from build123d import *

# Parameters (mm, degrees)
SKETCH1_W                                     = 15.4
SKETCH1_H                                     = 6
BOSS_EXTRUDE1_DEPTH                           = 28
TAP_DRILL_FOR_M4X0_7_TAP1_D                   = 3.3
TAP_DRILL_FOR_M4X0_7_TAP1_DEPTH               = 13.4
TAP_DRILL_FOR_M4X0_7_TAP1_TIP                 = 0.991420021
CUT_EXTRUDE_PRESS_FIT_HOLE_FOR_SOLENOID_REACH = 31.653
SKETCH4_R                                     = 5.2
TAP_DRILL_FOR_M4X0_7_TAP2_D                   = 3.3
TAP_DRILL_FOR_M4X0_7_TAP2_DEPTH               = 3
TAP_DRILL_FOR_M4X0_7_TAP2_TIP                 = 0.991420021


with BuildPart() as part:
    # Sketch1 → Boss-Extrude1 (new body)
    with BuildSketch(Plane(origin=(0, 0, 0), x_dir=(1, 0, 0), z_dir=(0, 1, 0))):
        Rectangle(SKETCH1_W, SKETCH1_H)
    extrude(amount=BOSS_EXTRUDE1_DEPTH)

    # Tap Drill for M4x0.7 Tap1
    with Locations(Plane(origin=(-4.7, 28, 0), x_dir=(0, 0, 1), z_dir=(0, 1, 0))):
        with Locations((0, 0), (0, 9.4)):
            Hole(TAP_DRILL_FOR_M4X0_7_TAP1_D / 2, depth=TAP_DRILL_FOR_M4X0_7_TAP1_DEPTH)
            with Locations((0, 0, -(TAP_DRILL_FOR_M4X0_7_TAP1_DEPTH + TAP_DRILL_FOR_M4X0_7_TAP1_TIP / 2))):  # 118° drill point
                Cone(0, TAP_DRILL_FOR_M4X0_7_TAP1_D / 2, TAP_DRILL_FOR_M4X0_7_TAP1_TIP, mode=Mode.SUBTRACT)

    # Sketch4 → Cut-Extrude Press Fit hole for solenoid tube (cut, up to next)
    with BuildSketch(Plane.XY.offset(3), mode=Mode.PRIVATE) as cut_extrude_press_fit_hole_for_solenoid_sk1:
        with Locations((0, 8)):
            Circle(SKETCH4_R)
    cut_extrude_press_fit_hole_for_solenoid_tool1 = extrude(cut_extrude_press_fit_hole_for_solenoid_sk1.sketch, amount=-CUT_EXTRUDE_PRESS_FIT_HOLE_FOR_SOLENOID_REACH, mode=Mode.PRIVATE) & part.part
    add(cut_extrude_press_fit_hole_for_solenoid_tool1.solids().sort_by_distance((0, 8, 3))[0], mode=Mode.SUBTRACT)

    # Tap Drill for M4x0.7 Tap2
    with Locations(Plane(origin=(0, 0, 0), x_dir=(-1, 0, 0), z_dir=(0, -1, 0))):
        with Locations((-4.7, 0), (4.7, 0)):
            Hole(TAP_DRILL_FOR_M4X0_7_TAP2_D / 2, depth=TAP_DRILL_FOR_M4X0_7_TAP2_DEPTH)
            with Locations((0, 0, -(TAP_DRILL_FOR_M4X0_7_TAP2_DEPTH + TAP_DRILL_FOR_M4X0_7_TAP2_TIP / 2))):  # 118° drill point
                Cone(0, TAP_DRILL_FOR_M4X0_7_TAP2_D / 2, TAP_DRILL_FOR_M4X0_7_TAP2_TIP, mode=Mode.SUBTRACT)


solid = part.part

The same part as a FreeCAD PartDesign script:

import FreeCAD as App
import Part
import Sketcher

V = App.Vector
Q = App.Units.Quantity


def add_polygon(sketch, points):
    """Adds a closed chain of lines whose ends are joined by coincident constraints."""
    first, n = sketch.GeometryCount, len(points)
    for a, b in zip(points, points[1:] + points[:1]):
        sketch.addGeometry(Part.LineSegment(App.Vector(*a, 0), App.Vector(*b, 0)), False)
    for i in range(n):
        sketch.addConstraint(Sketcher.Constraint("Coincident", first + i, 2, first + (i + 1) % n, 1))

doc = App.newDocument("Part")
body = doc.addObject("PartDesign::Body", "Body")

sketch1 = body.newObject("Sketcher::SketchObject", "Sketch")
sketch1.AttachmentSupport = (doc.getObject("XZ_Plane"), [""])
sketch1.MapMode = "FlatFace"
add_polygon(sketch1, [(-8, -3), (-8, 3), (8, 3), (8, -3)])
sketch1.addConstraint([
    Sketcher.Constraint("Vertical", 0),
    Sketcher.Constraint("Horizontal", 1),
    Sketcher.Constraint("Vertical", 2),
    Sketcher.Constraint("Horizontal", 3),
    Sketcher.Constraint("Symmetric", 0, 2, 2, 2, -1, 1),
    Sketcher.Constraint("DistanceY", 0, 1, 0, 2, Q("6 mm")),
    Sketcher.Constraint("DistanceX", 1, 1, 1, 2, Q("15.4 mm")),
])
pad1 = body.newObject("PartDesign::Pad", "Pad")
pad1.Profile = sketch1
pad1.Length = 28
pad1.Reversed = True

sketch2 = body.newObject("Sketcher::SketchObject", "Sketch001")
sketch2.AttachmentSupport = (doc.getObject("XZ_Plane"), [""])
sketch2.MapMode = "FlatFace"
sketch2.AttachmentOffset = App.Placement(V(0, 0, -28), App.Rotation())
sketch2.addGeometry([
    Part.Circle(V(-4.7, 0, 0), V(0, 0, 1), 1.6),
    Part.Circle(V(4.7, 0, 0), V(0, 0, 1), 1.6),
], False)
sketch2.addConstraint([
    Sketcher.Constraint("Equal", 0, 1),
    Sketcher.Constraint("Symmetric", 0, 3, 1, 3, -1, 1),
    Sketcher.Constraint("PointOnObject", 0, 3, -1),
    Sketcher.Constraint("Diameter", 0, Q("3.3 mm")),
    Sketcher.Constraint("DistanceX", 0, 3, -1, 1, Q("4.7 mm")),
])
doc.recompute()
hole = body.newObject("PartDesign::Hole", "Hole")
hole.Profile = sketch2
hole.ThreadType = "None"
hole.Diameter = 3.3
hole.DepthType = "Dimension"
hole.Depth = 13.4
hole.DrillPoint = "Angled"
hole.DrillPointAngle = 118
hole.Reversed = True

sketch3 = body.newObject("Sketcher::SketchObject", "Sketch002")
sketch3.AttachmentSupport = (doc.getObject("XY_Plane"), [""])
sketch3.MapMode = "FlatFace"
sketch3.AttachmentOffset = App.Placement(V(0, 0, 3), App.Rotation())
sketch3.addGeometry(Part.Circle(V(0, 8, 0), V(0, 0, 1), 5), False)
sketch3.addConstraint([
    Sketcher.Constraint("PointOnObject", 0, 3, -2),
    Sketcher.Constraint("Diameter", 0, Q("10.4 mm")),
    Sketcher.Constraint("DistanceY", -1, 1, 0, 3, Q("8 mm")),
])
pocket1 = body.newObject("PartDesign::Pocket", "Pocket")
pocket1.Profile = sketch3
pocket1.Type = "UpToFirst"

sketch4 = body.newObject("Sketcher::SketchObject", "Sketch003")
sketch4.AttachmentSupport = (doc.getObject("XZ_Plane"), [""])
sketch4.MapMode = "FlatFace"
sketch4.addGeometry([
    Part.Circle(V(4.7, 0, 0), V(0, 0, 1), 1.6),
    Part.Circle(V(-4.7, 0, 0), V(0, 0, 1), 1.6),
], False)
sketch4.addConstraint([
    Sketcher.Constraint("Equal", 0, 1),
    Sketcher.Constraint("Symmetric", 0, 3, 1, 3, -1, 1),
    Sketcher.Constraint("PointOnObject", 0, 3, -1),
    Sketcher.Constraint("Diameter", 0, Q("3.3 mm")),
    Sketcher.Constraint("DistanceX", -1, 1, 0, 3, Q("4.7 mm")),
])
doc.recompute()
hole2 = body.newObject("PartDesign::Hole", "Hole001")
hole2.Profile = sketch4
hole2.ThreadType = "None"
hole2.Diameter = 3.3
hole2.DepthType = "Dimension"
hole2.Depth = 3
hole2.DrillPoint = "Angled"
hole2.DrillPointAngle = 118

doc.recompute()
